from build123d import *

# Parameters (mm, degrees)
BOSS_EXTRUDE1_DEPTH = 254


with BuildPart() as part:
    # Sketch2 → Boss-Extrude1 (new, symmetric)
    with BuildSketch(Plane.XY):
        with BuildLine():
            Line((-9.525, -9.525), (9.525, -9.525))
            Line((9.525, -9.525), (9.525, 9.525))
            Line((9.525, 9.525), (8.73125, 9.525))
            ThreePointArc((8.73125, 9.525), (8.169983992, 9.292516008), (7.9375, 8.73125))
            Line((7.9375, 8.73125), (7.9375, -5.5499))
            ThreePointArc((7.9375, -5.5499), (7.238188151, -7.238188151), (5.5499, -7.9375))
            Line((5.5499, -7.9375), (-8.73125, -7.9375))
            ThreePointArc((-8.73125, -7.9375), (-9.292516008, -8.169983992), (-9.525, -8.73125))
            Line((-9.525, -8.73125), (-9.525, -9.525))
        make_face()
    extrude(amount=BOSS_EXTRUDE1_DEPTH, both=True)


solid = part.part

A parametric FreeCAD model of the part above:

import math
import FreeCAD as App
import Part
import Sketcher
from FreeCAD import Vector
Q = App.Units.Quantity

doc = App.newDocument("Part")
body = doc.addObject("PartDesign::Body", "Body")

# Sketch on XY plane
sketch1 = doc.addObject("Sketcher::SketchObject", "Sketch")
body.addObject(sketch1)
sketch1.AttachmentSupport = (doc.XY_Plane, [""])
sketch1.MapMode = "FlatFace"
sketch1.addGeometry(Part.LineSegment(Vector(-9.5, -9.5, 0), Vector(9.5, -9.5, 0)), False)
sketch1.addGeometry(Part.LineSegment(Vector(9.5, -9.5, 0), Vector(9.5, 9.5, 0)), False)
sketch1.addGeometry(Part.LineSegment(Vector(9.5, 9.5, 0), Vector(8.7, 9.5, 0)), False)
sketch1.addGeometry(Part.ArcOfCircle(Part.Circle(Vector(8.7, 8.7, 0), Vector(0, 0, 1), 0.8), math.radians(90), math.radians(180)), False)
sketch1.addGeometry(Part.LineSegment(Vector(7.9, 8.7, 0), Vector(7.9, -5.5, 0)), False)
sketch1.addGeometry(Part.ArcOfCircle(Part.Circle(Vector(5.5, -5.5, 0), Vector(0, 0, 1), 2.4), math.radians(-90), math.radians(0)), False)
sketch1.addGeometry(Part.LineSegment(Vector(5.5, -7.9, 0), Vector(-8.7, -7.9, 0)), False)
sketch1.addGeometry(Part.ArcOfCircle(Part.Circle(Vector(-8.7, -8.7, 0), Vector(0, 0, 1), 0.8), math.radians(90), math.radians(180)), False)
sketch1.addGeometry(Part.LineSegment(Vector(-9.5, -8.7, 0), Vector(-9.5, -9.5, 0)), False)
sketch1.addConstraint(Sketcher.Constraint("Coincident", 0, 2, 1, 1))
sketch1.addConstraint(Sketcher.Constraint("Coincident", 1, 2, 2, 1))
sketch1.addConstraint(Sketcher.Constraint("Tangent", 2, 2, 3, 1))
sketch1.addConstraint(Sketcher.Constraint("Tangent", 3, 2, 4, 1))
sketch1.addConstraint(Sketcher.Constraint("Tangent", 4, 2, 5, 2))
sketch1.addConstraint(Sketcher.Constraint("Tangent", 5, 1, 6, 1))
sketch1.addConstraint(Sketcher.Constraint("Tangent", 6, 2, 7, 1))
sketch1.addConstraint(Sketcher.Constraint("Tangent", 7, 2, 8, 1))
sketch1.addConstraint(Sketcher.Constraint("Coincident", 8, 2, 0, 1))
sketch1.addConstraint(Sketcher.Constraint("Horizontal", 0))
sketch1.addConstraint(Sketcher.Constraint("Vertical", 1))
sketch1.addConstraint(Sketcher.Constraint("Horizontal", 2))
sketch1.addConstraint(Sketcher.Constraint("Vertical", 4))
sketch1.addConstraint(Sketcher.Constraint("Horizontal", 6))
sketch1.addConstraint(Sketcher.Constraint("Vertical", 8))
sketch1.addConstraint(Sketcher.Constraint("Equal", 3, 7))
sketch1.addConstraint(Sketcher.Constraint("Symmetric", 3, 3, 7, 3, -1, 1))
sketch1.addConstraint(Sketcher.Constraint("Symmetric", 1, 2, 8, 2, -1, 1))
sketch1.addConstraint(Sketcher.Constraint("Equal", 0, 1))
sketch1.addConstraint(Sketcher.Constraint("Radius", 3, Q("0.03125 in")))
sketch1.addConstraint(Sketcher.Constraint("Radius", 5, Q("0.094 in")))
sketch1.addConstraint(Sketcher.Constraint("DistanceX", 0, 1, 0, 2, Q("0.75 in")))
pad1 = doc.addObject("PartDesign::Pad", "Pad")
body.addObject(pad1)
pad1.Profile = sketch1
pad1.Length = Q("20 in")
pad1.Midplane = True

doc.recompute()
